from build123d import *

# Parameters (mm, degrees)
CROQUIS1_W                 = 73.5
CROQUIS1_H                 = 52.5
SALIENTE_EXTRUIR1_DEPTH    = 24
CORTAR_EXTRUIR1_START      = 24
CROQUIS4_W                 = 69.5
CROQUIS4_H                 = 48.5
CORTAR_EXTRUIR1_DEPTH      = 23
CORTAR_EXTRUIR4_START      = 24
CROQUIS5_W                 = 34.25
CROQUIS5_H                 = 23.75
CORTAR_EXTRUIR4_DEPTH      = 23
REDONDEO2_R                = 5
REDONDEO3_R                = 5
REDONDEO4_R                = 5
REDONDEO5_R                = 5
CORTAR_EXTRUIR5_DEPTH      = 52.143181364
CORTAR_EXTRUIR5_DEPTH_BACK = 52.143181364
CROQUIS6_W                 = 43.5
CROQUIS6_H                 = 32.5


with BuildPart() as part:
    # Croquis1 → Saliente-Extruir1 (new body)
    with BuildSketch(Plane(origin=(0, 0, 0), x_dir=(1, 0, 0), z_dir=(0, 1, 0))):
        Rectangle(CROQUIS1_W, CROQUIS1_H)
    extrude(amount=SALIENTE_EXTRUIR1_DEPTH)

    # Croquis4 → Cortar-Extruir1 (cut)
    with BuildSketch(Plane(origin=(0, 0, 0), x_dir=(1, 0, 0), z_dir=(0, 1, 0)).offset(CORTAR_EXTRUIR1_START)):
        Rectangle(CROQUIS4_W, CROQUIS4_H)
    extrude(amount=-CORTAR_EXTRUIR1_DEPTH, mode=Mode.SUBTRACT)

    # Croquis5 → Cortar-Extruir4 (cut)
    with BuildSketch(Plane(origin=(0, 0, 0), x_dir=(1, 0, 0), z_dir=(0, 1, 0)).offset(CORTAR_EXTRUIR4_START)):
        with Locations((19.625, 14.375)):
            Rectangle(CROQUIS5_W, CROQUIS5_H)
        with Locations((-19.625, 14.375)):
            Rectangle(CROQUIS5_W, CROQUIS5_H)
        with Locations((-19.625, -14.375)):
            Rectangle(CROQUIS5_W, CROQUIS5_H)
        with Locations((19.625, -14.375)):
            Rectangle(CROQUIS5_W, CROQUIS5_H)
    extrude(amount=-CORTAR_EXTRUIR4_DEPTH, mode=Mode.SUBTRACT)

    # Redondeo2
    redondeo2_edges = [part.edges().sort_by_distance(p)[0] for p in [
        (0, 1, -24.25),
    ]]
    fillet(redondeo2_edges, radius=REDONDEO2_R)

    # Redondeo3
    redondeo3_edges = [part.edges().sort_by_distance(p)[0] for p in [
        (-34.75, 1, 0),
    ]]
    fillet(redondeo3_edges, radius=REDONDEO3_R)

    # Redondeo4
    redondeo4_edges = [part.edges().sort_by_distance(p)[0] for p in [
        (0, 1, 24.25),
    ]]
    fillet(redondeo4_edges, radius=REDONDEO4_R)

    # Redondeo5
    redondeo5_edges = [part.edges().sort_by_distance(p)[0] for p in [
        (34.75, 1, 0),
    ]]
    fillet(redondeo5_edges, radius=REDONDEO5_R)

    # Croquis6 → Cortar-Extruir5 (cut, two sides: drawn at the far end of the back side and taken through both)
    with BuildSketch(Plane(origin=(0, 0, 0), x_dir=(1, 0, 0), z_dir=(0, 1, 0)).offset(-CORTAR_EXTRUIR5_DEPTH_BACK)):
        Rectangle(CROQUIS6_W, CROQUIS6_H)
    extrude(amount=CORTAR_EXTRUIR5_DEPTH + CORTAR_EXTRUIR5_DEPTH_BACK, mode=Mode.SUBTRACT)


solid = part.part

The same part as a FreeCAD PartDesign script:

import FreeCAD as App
import Part
import Sketcher
from FreeCAD import Vector
Q = App.Units.Quantity


def edges_at(feature, points):
    """Names of the edges that pass closest to the given points."""
    edges = feature.Shape.Edges
    near = lambda p: min(range(len(edges)), key=lambda i: edges[i].distToShape(Part.Vertex(*p))[0])
    return sorted({f"Edge{near(p) + 1}" for p in points})


def add_polygon(sketch, points):
    """Adds a closed chain of lines whose ends are joined by coincident constraints."""
    first, n = sketch.GeometryCount, len(points)
    for a, b in zip(points, points[1:] + points[:1]):
        sketch.addGeometry(Part.LineSegment(App.Vector(*a, 0), App.Vector(*b, 0)), False)
    for i in range(n):
        sketch.addConstraint(Sketcher.Constraint("Coincident", first + i, 2, first + (i + 1) % n, 1))

doc = App.newDocument("Part")
body = doc.addObject("PartDesign::Body", "Body")

# Sketch on XZ plane
sketch1 = body.newObject("Sketcher::SketchObject", "Sketch")
sketch1.AttachmentSupport = (doc.getObject("XZ_Plane"), [""])
sketch1.MapMode = "FlatFace"
add_polygon(sketch1, [(-37, -26), (-37, 26), (37, 26), (37, -26)])  # lines 0-3
sketch1.addConstraint([
    Sketcher.Constraint("Vertical", 0),
    Sketcher.Constraint("Horizontal", 1),
    Sketcher.Constraint("Vertical", 2),
    Sketcher.Constraint("Horizontal", 3),
    Sketcher.Constraint("Symmetric", 0, 2, 2, 2, -1, 1),
    Sketcher.Constraint("DistanceX", 1, 1, 1, 2, Q("73.5 mm")),
    Sketcher.Constraint("DistanceY", 0, 1, 0, 2, Q("52.5 mm")),
])
pad1 = body.newObject("PartDesign::Pad", "Pad")
pad1.Profile = sketch1
pad1.Length = 24
pad1.Reversed = True

# Sketch on XZ plane
sketch2 = body.newObject("Sketcher::SketchObject", "Sketch001")
sketch2.AttachmentSupport = (doc.getObject("XZ_Plane"), [""])
sketch2.MapMode = "FlatFace"
sketch2.AttachmentOffset = App.Placement(Vector(0, 0, -24), App.Rotation())
add_polygon(sketch2, [(-35, -24), (-35, 24), (35, 24), (35, -24)])  # lines 0-3
sketch2.addConstraint([
    Sketcher.Constraint("Vertical", 0),
    Sketcher.Constraint("Horizontal", 1),
    Sketcher.Constraint("Vertical", 2),
    Sketcher.Constraint("Horizontal", 3),
    Sketcher.Constraint("Symmetric", 0, 2, 2, 2, -1, 1),
    Sketcher.Constraint("DistanceX", 1, 1, 1, 2, Q("69.5 mm")),
    Sketcher.Constraint("DistanceY", 0, 1, 0, 2, Q("48.5 mm")),
])
pocket1 = body.newObject("PartDesign::Pocket", "Pocket")
pocket1.Profile = sketch2
pocket1.Length = 23
pocket1.Reversed = True

# Sketch on XZ plane
sketch3 = body.newObject("Sketcher::SketchObject", "Sketch002")
sketch3.AttachmentSupport = (doc.getObject("XZ_Plane"), [""])
sketch3.MapMode = "FlatFace"
sketch3.AttachmentOffset = App.Placement(Vector(0, 0, -24), App.Rotation())
add_polygon(sketch3, [(2, -26), (2, -2), (37, -2), (37, -26)])  # lines 0-3
add_polygon(sketch3, [(-37, -26), (-37, -2), (-2, -2), (-2, -26)])  # lines 4-7
add_polygon(sketch3, [(-37, 2), (-37, 26), (-2, 26), (-2, 2)])  # lines 8-11
add_polygon(sketch3, [(2, 2), (2, 26), (37, 26), (37, 2)])  # lines 12-15
sketch3.addConstraint([
    Sketcher.Constraint("Vertical", 0),
    Sketcher.Constraint("Horizontal", 1),
    Sketcher.Constraint("Vertical", 2),
    Sketcher.Constraint("Horizontal", 3),
    Sketcher.Constraint("Vertical", 4),
    Sketcher.Constraint("Horizontal", 5),
    Sketcher.Constraint("Vertical", 6),
    Sketcher.Constraint("Horizontal", 7),
    Sketcher.Constraint("Vertical", 8),
    Sketcher.Constraint("Horizontal", 9),
    Sketcher.Constraint("Vertical", 10),
    Sketcher.Constraint("Horizontal", 11),
    Sketcher.Constraint("Vertical", 12),
    Sketcher.Constraint("Horizontal", 13),
    Sketcher.Constraint("Vertical", 14),
    Sketcher.Constraint("Horizontal", 15),
    Sketcher.Constraint("Symmetric", 2, 2, 8, 2, -1, 1),
    Sketcher.Constraint("Symmetric", 0, 2, 10, 2, -1, 1),
    Sketcher.Constraint("Symmetric", 6, 2, 12, 2, -1, 1),
    Sketcher.Constraint("Symmetric", 4, 2, 14, 2, -1, 1),
    Sketcher.Constraint("Symmetric", 1, 2, 4, 2, -2),
    Sketcher.Constraint("Symmetric", 3, 2, 6, 2, -2),
    Sketcher.Constraint("DistanceX", 5, 2, 0, 2, Q("5 mm")),
    Sketcher.Constraint("DistanceY", 5, 2, 10, 2, Q("5 mm")),
    Sketcher.Constraint("DistanceX", 1, 1, 1, 2, Q("34.25 mm")),
    Sketcher.Constraint("DistanceY", 0, 1, 0, 2, Q("23.75 mm")),
])
pocket2 = body.newObject("PartDesign::Pocket", "Pocket001")
pocket2.Profile = sketch3
pocket2.Length = 23
pocket2.Reversed = True
doc.recompute()

fillet = body.newObject("PartDesign::Fillet", "Fillet")
fillet.Base = (pocket2, edges_at(pocket2, [(0, 1, -24.25)]))
fillet.Radius = 5
doc.recompute()

fillet2 = body.newObject("PartDesign::Fillet", "Fillet001")
fillet2.Base = (fillet, edges_at(fillet, [(-34.75, 1, 0)]))
fillet2.Radius = 5
doc.recompute()

fillet3 = body.newObject("PartDesign::Fillet", "Fillet002")
fillet3.Base = (fillet2, edges_at(fillet2, [(0, 1, 24.25)]))
fillet3.Radius = 5
doc.recompute()

fillet4 = body.newObject("PartDesign::Fillet", "Fillet003")
fillet4.Base = (fillet3, edges_at(fillet3, [(34.75, 1, 0)]))
fillet4.Radius = 5

# Sketch on XZ plane
sketch4 = body.newObject("Sketcher::SketchObject", "Sketch003")
sketch4.AttachmentSupport = (doc.getObject("XZ_Plane"), [""])
sketch4.MapMode = "FlatFace"
add_polygon(sketch4, [(-22, -16), (-22, 16), (22, 16), (22, -16)])  # lines 0-3
sketch4.addConstraint([
    Sketcher.Constraint("Vertical", 0),
    Sketcher.Constraint("Horizontal", 1),
    Sketcher.Constraint("Vertical", 2),
    Sketcher.Constraint("Horizontal", 3),
    Sketcher.Constraint("Symmetric", 0, 2, 2, 2, -1, 1),
    Sketcher.Constraint("DistanceX", 1, 1, 1, 2, Q("43.5 mm")),
    Sketcher.Constraint("DistanceY", 0, 1, 0, 2, Q("32.5 mm")),
])
pocket3 = body.newObject("PartDesign::Pocket", "Pocket002")
pocket3.Profile = sketch4
pocket3.Type = "ThroughAll"
pocket3.Midplane = True

doc.recompute()
